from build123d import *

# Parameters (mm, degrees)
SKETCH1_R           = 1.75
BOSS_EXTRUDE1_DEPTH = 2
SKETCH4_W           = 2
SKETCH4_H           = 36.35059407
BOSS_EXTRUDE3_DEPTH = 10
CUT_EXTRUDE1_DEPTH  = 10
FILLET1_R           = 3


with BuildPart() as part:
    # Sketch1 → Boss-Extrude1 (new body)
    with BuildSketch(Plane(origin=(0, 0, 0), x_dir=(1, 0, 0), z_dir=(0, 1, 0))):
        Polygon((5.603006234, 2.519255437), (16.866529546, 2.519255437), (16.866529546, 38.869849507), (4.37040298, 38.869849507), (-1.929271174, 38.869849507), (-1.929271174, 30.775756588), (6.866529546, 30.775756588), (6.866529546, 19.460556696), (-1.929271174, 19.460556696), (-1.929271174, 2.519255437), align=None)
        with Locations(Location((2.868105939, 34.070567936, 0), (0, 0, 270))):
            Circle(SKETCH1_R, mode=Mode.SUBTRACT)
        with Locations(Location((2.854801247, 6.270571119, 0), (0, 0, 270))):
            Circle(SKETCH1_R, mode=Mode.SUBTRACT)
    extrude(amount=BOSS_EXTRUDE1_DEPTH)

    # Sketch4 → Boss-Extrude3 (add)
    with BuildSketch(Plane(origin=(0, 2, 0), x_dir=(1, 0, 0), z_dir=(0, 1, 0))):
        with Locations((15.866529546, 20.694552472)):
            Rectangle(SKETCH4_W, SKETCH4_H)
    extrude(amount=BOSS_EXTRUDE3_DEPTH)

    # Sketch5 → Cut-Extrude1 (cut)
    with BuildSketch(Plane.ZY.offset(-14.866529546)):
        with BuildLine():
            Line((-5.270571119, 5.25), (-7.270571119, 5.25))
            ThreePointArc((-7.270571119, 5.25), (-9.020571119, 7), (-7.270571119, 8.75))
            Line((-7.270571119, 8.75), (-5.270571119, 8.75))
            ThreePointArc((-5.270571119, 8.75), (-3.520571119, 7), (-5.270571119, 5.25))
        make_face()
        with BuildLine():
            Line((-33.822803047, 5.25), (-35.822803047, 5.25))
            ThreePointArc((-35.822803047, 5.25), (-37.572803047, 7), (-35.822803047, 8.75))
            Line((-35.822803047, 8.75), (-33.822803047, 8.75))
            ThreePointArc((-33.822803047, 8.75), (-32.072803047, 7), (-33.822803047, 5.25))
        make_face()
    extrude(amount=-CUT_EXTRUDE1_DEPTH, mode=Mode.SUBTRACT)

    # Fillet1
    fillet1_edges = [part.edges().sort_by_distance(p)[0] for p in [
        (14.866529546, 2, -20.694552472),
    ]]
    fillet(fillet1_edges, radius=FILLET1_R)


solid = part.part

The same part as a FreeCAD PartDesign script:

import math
import FreeCAD as App
import Part
import Sketcher
from FreeCAD import Vector


def edges_at(feature, points):
    """Names of the edges that pass closest to the given points."""
    edges = feature.Shape.Edges
    near = lambda p: min(range(len(edges)), key=lambda i: edges[i].distToShape(Part.Vertex(*p))[0])
    return sorted({f"Edge{near(p) + 1}" for p in points})


def add_polygon(sketch, points):
    """Adds a closed chain of lines whose ends are joined by coincident constraints."""
    first, n = sketch.GeometryCount, len(points)
    for a, b in zip(points, points[1:] + points[:1]):
        sketch.addGeometry(Part.LineSegment(App.Vector(*a, 0), App.Vector(*b, 0)), False)
    for i in range(n):
        sketch.addConstraint(Sketcher.Constraint("Coincident", first + i, 2, first + (i + 1) % n, 1))

doc = App.newDocument("Part")
body = doc.addObject("PartDesign::Body", "Body")

sketch1 = body.newObject("Sketcher::SketchObject", "Sketch")
sketch1.AttachmentSupport = (doc.getObject("XZ_Plane"), [""])
sketch1.MapMode = "FlatFace"
add_polygon(sketch1, [(16.9, -2.5), (16.9, -38.9), (-1.9, -38.9), (-1.9, -30.8), (6.9, -30.8), (6.9, -19.5), (-1.9, -19.5), (-1.9, -2.5)])
sketch1.addGeometry(Part.Circle(Vector(2.9, -6.3, 0), Vector(0, 0, 1), 1.8), False)
sketch1.addGeometry(Part.Circle(Vector(2.9, -34.1, 0), Vector(0, 0, 1), 1.8), False)
sketch1.addConstraint([
    Sketcher.Constraint("Vertical", 0),
    Sketcher.Constraint("Horizontal", 1),
    Sketcher.Constraint("Vertical", 2),
    Sketcher.Constraint("Horizontal", 3),
    Sketcher.Constraint("Vertical", 4),
    Sketcher.Constraint("Horizontal", 5),
    Sketcher.Constraint("Vertical", 6),
    Sketcher.Constraint("Horizontal", 7),
    Sketcher.Constraint("Equal", 8, 9),
    Sketcher.Constraint("Vertical", 2, 2, 5, 2),
    Sketcher.Constraint("Diameter", 8, 3.5),
    Sketcher.Constraint("DistanceX", 3, 2, 0, 2, 10.0),
    Sketcher.Constraint("DistanceX", 1, 2, 1, 1, 18.795801),
    Sketcher.Constraint("DistanceY", 4, 1, 4, 2, 11.3152),
    Sketcher.Constraint("DistanceY", 6, 1, 6, 2, 16.941301),
    Sketcher.Constraint("DistanceX", -1, 1, 8, 3, 2.854801),
    Sketcher.Constraint("DistanceY", 0, 2, 0, 1, 36.350594),
    Sketcher.Constraint("DistanceY", 8, 3, -1, 1, 6.270571),
    Sketcher.Constraint("DistanceX", -1, 1, 0, 2, 16.86653),
    Sketcher.Constraint("DistanceY", 0, 2, -1, 1, 38.86985),
    Sketcher.Constraint("DistanceY", 0, 2, 9, 3, 4.799282),
    Sketcher.Constraint("DistanceX", -1, 1, 9, 3, 2.868106),
])
pad1 = body.newObject("PartDesign::Pad", "Pad")
pad1.Profile = sketch1
pad1.Length = 2
pad1.Reversed = True

sketch2 = body.newObject("Sketcher::SketchObject", "Sketch001")
sketch2.AttachmentSupport = (doc.getObject("XZ_Plane"), [""])
sketch2.MapMode = "FlatFace"
sketch2.AttachmentOffset = App.Placement(Vector(0, 0, -2), App.Rotation())
add_polygon(sketch2, [(14.9, -38.9), (14.9, -2.5), (16.9, -2.5), (16.9, -38.9)])
sketch2.addConstraint([
    Sketcher.Constraint("Vertical", 0),
    Sketcher.Constraint("Horizontal", 1),
    Sketcher.Constraint("Vertical", 2),
    Sketcher.Constraint("Horizontal", 3),
    Sketcher.Constraint("DistanceX", 1, 1, 1, 2, 2.0),
    Sketcher.Constraint("DistanceY", 0, 1, 0, 2, 36.350594),
    Sketcher.Constraint("DistanceX", -1, 1, 0, 2, 14.86653),
    Sketcher.Constraint("DistanceY", 2, 2, -1, 1, 38.86985),
])
pad2 = body.newObject("PartDesign::Pad", "Pad001")
pad2.Profile = sketch2
pad2.Length = 10
pad2.Reversed = True

sketch3 = body.newObject("Sketcher::SketchObject", "Sketch002")
sketch3.AttachmentSupport = (doc.getObject("YZ_Plane"), [""])
sketch3.MapMode = "FlatFace"
sketch3.AttachmentOffset = App.Placement(Vector(0, 0, 14.86653), App.Rotation())
sketch3.addGeometry([
    Part.LineSegment(Vector(5.2, -7.3, 0), Vector(5.2, -5.3, 0)),
    Part.ArcOfCircle(Part.Circle(Vector(7, -5.3, 0), Vector(0, 0, 1), 1.8), math.radians(0), math.radians(180)),
    Part.LineSegment(Vector(8.8, -5.3, 0), Vector(8.8, -7.3, 0)),
    Part.ArcOfCircle(Part.Circle(Vector(7, -7.3, 0), Vector(0, 0, 1), 1.8), math.radians(180), math.radians(360)),
    Part.LineSegment(Vector(5.2, -35.8, 0), Vector(5.2, -33.8, 0)),
    Part.ArcOfCircle(Part.Circle(Vector(7, -33.8, 0), Vector(0, 0, 1), 1.8), math.radians(0), math.radians(180)),
    Part.LineSegment(Vector(8.8, -33.8, 0), Vector(8.8, -35.8, 0)),
    Part.ArcOfCircle(Part.Circle(Vector(7, -35.8, 0), Vector(0, 0, 1), 1.8), math.radians(180), math.radians(360)),
], False)
sketch3.addConstraint([
    Sketcher.Constraint("Tangent", 0, 2, 1, 2),
    Sketcher.Constraint("Tangent", 1, 1, 2, 1),
    Sketcher.Constraint("Tangent", 2, 2, 3, 2),
    Sketcher.Constraint("Tangent", 3, 1, 0, 1),
    Sketcher.Constraint("Tangent", 4, 2, 5, 2),
    Sketcher.Constraint("Tangent", 5, 1, 6, 1),
    Sketcher.Constraint("Tangent", 6, 2, 7, 2),
    Sketcher.Constraint("Tangent", 7, 1, 4, 1),
    Sketcher.Constraint("Vertical", 0),
    Sketcher.Constraint("Vertical", 2),
    Sketcher.Constraint("Vertical", 4),
    Sketcher.Constraint("Vertical", 6),
    Sketcher.Constraint("Equal", 3, 5),
    Sketcher.Constraint("Vertical", 3, 3, 5, 3),
    Sketcher.Constraint("Equal", 2, 4),
    Sketcher.Constraint("DistanceY", 0, 1, 0, 2, 2.0),
    Sketcher.Constraint("Radius", 1, 1.75),
    Sketcher.Constraint("DistanceX", -1, 1, 1, 3, 7.0),
    Sketcher.Constraint("DistanceY", 1, 3, -1, 1, 5.270571),
    Sketcher.Constraint("DistanceY", 5, 3, 3, 3, 26.552232),
])
pocket1 = body.newObject("PartDesign::Pocket", "Pocket")
pocket1.Profile = sketch3
pocket1.Length = 10
pocket1.Reversed = True
doc.recompute()

fillet = body.newObject("PartDesign::Fillet", "Fillet")
fillet.Base = (pocket1, edges_at(pocket1, [(14.867, 2, -20.695)]))
fillet.Radius = 3

doc.recompute()
